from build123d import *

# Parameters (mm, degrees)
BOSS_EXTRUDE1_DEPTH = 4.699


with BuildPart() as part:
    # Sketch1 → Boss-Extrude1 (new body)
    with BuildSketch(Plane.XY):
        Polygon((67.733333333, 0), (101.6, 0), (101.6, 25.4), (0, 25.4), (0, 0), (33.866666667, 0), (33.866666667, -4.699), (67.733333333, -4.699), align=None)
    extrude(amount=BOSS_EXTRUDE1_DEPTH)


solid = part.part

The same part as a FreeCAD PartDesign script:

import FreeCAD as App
import Part
import Sketcher

V = App.Vector
Q = App.Units.Quantity


def add_polygon(sketch, points):
    """Adds a closed chain of lines whose ends are joined by coincident constraints."""
    first, n = sketch.GeometryCount, len(points)
    for a, b in zip(points, points[1:] + points[:1]):
        sketch.addGeometry(Part.LineSegment(App.Vector(*a, 0), App.Vector(*b, 0)), False)
    for i in range(n):
        sketch.addConstraint(Sketcher.Constraint("Coincident", first + i, 2, first + (i + 1) % n, 1))

doc = App.newDocument("Part")
body = doc.addObject("PartDesign::Body", "Body")

sketch1 = body.newObject("Sketcher::SketchObject", "Sketch")
sketch1.AttachmentSupport = (doc.getObject("XY_Plane"), [""])
sketch1.MapMode = "FlatFace"
add_polygon(sketch1, [(67.7, 0), (101.6, 0), (101.6, 25.4), (0, 25.4), (0, 0), (33.9, 0), (33.9, -4.7), (67.7, -4.7)])
sketch1.addConstraint([
    Sketcher.Constraint("Horizontal", 0),
    Sketcher.Constraint("Vertical", 1),
    Sketcher.Constraint("Horizontal", 2),
    Sketcher.Constraint("Vertical", 3),
    Sketcher.Constraint("Horizontal", 4),
    Sketcher.Constraint("Vertical", 5),
    Sketcher.Constraint("Horizontal", 6),
    Sketcher.Constraint("Vertical", 7),
    Sketcher.Constraint("Coincident", 3, 2, -1, 1),
    Sketcher.Constraint("PointOnObject", 0, 2, -1),
    Sketcher.Constraint("Equal", 0, 4),
    Sketcher.Constraint("Equal", 4, 6),
    Sketcher.Constraint("DistanceX", 2, 2, 2, 1, Q("4 in")),
    Sketcher.Constraint("DistanceY", 1, 1, 1, 2, Q("1 in")),
    Sketcher.Constraint("DistanceY", 5, 2, 5, 1, Q("0.185 in")),
])
pad1 = body.newObject("PartDesign::Pad", "Pad")
pad1.Profile = sketch1
pad1.Length = Q("0.185 in")

doc.recompute()
